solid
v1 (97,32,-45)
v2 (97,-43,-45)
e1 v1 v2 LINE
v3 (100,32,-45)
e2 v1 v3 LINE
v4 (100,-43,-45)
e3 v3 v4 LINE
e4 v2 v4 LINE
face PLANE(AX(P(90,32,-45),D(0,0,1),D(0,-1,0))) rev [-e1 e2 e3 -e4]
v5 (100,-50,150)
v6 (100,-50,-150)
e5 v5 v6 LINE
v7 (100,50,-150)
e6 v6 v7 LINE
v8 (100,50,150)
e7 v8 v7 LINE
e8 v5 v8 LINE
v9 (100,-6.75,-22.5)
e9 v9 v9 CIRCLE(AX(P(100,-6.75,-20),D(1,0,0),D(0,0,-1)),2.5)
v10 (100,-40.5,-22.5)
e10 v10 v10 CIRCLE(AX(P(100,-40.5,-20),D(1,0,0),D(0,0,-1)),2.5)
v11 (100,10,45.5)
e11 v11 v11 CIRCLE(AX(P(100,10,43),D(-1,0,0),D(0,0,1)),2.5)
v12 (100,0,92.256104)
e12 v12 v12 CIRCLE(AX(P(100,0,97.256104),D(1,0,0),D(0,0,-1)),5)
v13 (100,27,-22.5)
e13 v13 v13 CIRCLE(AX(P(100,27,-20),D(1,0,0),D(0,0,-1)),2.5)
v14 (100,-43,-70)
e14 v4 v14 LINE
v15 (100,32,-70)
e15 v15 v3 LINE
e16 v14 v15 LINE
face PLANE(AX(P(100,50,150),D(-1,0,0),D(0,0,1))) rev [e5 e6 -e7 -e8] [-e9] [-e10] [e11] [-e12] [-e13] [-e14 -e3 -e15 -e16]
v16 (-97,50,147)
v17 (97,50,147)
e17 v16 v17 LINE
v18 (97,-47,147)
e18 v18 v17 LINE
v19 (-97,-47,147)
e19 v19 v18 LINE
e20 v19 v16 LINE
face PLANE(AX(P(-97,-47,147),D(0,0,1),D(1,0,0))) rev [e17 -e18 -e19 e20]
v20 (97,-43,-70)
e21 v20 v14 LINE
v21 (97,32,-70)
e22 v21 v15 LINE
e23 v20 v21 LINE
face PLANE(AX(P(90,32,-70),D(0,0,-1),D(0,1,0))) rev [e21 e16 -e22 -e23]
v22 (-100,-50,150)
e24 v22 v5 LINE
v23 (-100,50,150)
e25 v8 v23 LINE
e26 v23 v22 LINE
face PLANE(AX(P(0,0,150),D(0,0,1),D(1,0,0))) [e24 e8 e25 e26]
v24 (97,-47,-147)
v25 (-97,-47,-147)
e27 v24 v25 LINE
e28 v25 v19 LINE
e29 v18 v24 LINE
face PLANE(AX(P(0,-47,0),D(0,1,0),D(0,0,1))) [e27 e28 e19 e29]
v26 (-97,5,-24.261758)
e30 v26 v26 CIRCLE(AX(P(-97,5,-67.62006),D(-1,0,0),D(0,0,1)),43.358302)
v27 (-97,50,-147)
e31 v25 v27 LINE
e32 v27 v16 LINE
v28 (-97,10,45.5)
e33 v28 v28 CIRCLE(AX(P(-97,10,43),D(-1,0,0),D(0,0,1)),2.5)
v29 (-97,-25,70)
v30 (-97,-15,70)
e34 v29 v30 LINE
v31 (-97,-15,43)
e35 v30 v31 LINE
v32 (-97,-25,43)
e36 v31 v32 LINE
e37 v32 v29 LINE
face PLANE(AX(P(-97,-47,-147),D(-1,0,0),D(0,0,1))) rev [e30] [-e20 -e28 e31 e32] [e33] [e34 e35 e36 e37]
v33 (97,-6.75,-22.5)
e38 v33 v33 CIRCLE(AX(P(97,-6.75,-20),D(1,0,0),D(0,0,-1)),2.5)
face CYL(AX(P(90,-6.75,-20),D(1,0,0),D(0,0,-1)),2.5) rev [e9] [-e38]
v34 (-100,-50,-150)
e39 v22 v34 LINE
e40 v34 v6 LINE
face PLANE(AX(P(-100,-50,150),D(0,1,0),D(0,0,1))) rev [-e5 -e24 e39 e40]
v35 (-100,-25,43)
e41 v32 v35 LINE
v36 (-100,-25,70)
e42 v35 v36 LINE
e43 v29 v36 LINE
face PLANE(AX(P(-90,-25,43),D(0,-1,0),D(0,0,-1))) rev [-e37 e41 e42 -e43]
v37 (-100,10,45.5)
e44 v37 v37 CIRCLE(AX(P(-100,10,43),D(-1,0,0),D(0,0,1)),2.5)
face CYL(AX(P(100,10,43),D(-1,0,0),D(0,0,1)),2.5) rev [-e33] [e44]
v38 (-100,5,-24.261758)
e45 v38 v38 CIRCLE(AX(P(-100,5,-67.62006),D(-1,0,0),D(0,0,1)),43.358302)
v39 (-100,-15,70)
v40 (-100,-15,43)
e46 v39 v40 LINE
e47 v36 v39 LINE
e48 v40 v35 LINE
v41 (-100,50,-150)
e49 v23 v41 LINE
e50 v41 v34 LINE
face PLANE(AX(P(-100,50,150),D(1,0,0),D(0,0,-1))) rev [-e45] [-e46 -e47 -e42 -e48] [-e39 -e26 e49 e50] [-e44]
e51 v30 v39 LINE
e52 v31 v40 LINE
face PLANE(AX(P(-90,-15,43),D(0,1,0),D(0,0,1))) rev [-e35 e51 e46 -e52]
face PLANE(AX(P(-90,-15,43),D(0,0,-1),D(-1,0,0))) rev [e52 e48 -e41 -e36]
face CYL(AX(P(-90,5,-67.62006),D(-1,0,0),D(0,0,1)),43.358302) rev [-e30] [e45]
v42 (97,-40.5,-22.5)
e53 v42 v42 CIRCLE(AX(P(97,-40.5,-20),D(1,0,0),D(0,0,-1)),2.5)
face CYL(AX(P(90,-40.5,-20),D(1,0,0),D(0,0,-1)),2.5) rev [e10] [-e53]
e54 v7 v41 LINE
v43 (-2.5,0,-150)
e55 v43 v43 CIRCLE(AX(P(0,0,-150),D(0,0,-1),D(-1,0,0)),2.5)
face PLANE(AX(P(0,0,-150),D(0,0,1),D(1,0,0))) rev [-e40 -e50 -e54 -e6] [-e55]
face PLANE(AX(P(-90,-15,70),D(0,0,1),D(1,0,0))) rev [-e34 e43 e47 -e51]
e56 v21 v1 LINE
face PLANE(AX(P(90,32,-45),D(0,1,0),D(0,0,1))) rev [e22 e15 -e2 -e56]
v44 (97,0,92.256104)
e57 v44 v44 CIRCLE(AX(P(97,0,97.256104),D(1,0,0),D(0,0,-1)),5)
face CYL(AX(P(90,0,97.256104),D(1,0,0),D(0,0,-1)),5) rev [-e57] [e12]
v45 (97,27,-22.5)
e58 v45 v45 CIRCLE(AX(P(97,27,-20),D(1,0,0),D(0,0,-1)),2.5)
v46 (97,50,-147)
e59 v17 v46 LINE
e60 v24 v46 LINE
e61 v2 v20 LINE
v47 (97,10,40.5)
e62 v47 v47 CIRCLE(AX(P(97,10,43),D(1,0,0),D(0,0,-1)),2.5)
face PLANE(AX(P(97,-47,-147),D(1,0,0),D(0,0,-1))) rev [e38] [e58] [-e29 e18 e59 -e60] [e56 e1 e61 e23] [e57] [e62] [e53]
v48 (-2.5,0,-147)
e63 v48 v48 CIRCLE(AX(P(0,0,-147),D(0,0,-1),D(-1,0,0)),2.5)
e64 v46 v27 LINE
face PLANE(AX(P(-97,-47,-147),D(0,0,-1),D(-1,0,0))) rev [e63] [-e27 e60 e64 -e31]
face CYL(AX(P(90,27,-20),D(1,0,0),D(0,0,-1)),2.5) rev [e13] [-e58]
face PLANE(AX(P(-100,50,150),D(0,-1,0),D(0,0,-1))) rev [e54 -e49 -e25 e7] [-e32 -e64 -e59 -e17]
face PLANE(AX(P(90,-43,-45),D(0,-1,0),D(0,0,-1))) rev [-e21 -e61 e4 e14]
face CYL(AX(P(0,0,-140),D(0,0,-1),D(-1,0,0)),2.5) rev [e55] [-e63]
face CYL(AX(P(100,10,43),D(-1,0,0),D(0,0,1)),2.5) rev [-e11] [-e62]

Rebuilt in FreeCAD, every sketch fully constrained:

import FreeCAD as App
import Part
import Sketcher

V = App.Vector
Q = App.Units.Quantity

doc = App.newDocument("Part")
params = doc.addObject("Spreadsheet::Sheet", "Params")
for row, (alias, value) in enumerate([
    ("sketch1_width", "200 mm"),
    ("sketch1_height", "100 mm"),
    ("pad1_length", "300 mm"),
    ("sketch2_width", "194 mm"),
    ("sketch2_height", "294 mm"),
    ("pocket1_length", "97 mm"),
    ("sketch3_diameter", "10 mm"),
    ("pocket2_length", "10 mm"),
    ("sketch4_diameter", "5 mm"),
    ("pocket3_length", "10 mm"),
    ("sketch5_width", "10 mm"),
    ("sketch5_height", "27 mm"),
    ("pocket4_length", "10 mm"),
    ("sketch6_diameter", "5 mm"),
    ("sketch7_diameter", "5 mm"),
    ("sketch7_width", "75 mm"),
    ("sketch7_height", "25 mm"),
    ("pocket6_length", "10 mm"),
    ("pocket7_length", "10 mm"),
], start=1):
    params.set(f"A{row}", alias)
    params.set(f"B{row}", "=" + value)
    params.setAlias(f"B{row}", alias)

body = doc.addObject("PartDesign::Body", "Body")

# Sketch on XY plane
sketch1 = body.newObject("Sketcher::SketchObject", "Sketch")
sketch1.AttachmentSupport = (doc.getObject("XY_Plane"), [""])
sketch1.MapMode = "FlatFace"
sketch1.addGeometry(Part.LineSegment(V(-100, 50, 0), V(-100, -50, 0)), False)
sketch1.addGeometry(Part.LineSegment(V(-100, -50, 0), V(100, -50, 0)), False)
sketch1.addGeometry(Part.LineSegment(V(100, -50, 0), V(100, 50, 0)), False)
sketch1.addGeometry(Part.LineSegment(V(100, 50, 0), V(-100, 50, 0)), False)
sketch1.addConstraint(Sketcher.Constraint("Coincident", 0, 2, 1, 1))
sketch1.addConstraint(Sketcher.Constraint("Coincident", 1, 2, 2, 1))
sketch1.addConstraint(Sketcher.Constraint("Coincident", 2, 2, 3, 1))
sketch1.addConstraint(Sketcher.Constraint("Coincident", 3, 2, 0, 1))
sketch1.addConstraint(Sketcher.Constraint("Vertical", 0))
sketch1.addConstraint(Sketcher.Constraint("Horizontal", 1))
sketch1.addConstraint(Sketcher.Constraint("Vertical", 2))
sketch1.addConstraint(Sketcher.Constraint("Horizontal", 3))
sketch1.addConstraint(Sketcher.Constraint("Symmetric", 0, 2, 2, 2, -1, 1))
sketch1.addConstraint(Sketcher.Constraint("DistanceX", 1, 1, 1, 2, Q("200 mm")))
sketch1.addConstraint(Sketcher.Constraint("DistanceY", 0, 2, 0, 1, Q("100 mm")))
sketch1.setExpression("Constraints[9]", "Params.sketch1_width")
sketch1.setExpression("Constraints[10]", "Params.sketch1_height")
pad1 = body.newObject("PartDesign::Pad", "Pad")
pad1.Profile = sketch1
pad1.setExpression("Length", "Params.pad1_length")
pad1.Midplane = True

# Sketch on XZ plane
sketch2 = body.newObject("Sketcher::SketchObject", "Sketch001")
sketch2.AttachmentSupport = (doc.getObject("XZ_Plane"), [""])
sketch2.MapMode = "FlatFace"
sketch2.AttachmentOffset = App.Placement(V(0, 0, -50), App.Rotation())
sketch2.addGeometry(Part.LineSegment(V(-97, -147, 0), V(-97, 147, 0)), False)
sketch2.addGeometry(Part.LineSegment(V(-97, 147, 0), V(97, 147, 0)), False)
sketch2.addGeometry(Part.LineSegment(V(97, 147, 0), V(97, -147, 0)), False)
sketch2.addGeometry(Part.LineSegment(V(97, -147, 0), V(-97, -147, 0)), False)
sketch2.addConstraint(Sketcher.Constraint("Coincident", 0, 2, 1, 1))
sketch2.addConstraint(Sketcher.Constraint("Coincident", 1, 2, 2, 1))
sketch2.addConstraint(Sketcher.Constraint("Coincident", 2, 2, 3, 1))
sketch2.addConstraint(Sketcher.Constraint("Coincident", 3, 2, 0, 1))
sketch2.addConstraint(Sketcher.Constraint("Vertical", 0))
sketch2.addConstraint(Sketcher.Constraint("Horizontal", 1))
sketch2.addConstraint(Sketcher.Constraint("Vertical", 2))
sketch2.addConstraint(Sketcher.Constraint("Horizontal", 3))
sketch2.addConstraint(Sketcher.Constraint("Symmetric", 0, 2, 2, 2, -1, 1))
sketch2.addConstraint(Sketcher.Constraint("DistanceX", 1, 1, 1, 2, Q("194 mm")))
sketch2.addConstraint(Sketcher.Constraint("DistanceY", 0, 1, 0, 2, Q("294 mm")))
sketch2.setExpression("Constraints[9]", "Params.sketch2_width")
sketch2.setExpression("Constraints[10]", "Params.sketch2_height")
pocket1 = body.newObject("PartDesign::Pocket", "Pocket")
pocket1.Profile = sketch2
pocket1.setExpression("Length", "Params.pocket1_length")
pocket1.Reversed = True

# Sketch on YZ plane
sketch3 = body.newObject("Sketcher::SketchObject", "Sketch002")
sketch3.AttachmentSupport = (doc.getObject("YZ_Plane"), [""])
sketch3.MapMode = "FlatFace"
sketch3.AttachmentOffset = App.Placement(V(0, 0, 100), App.Rotation())
sketch3.addGeometry(Part.Circle(V(0, 97.256104, 0), V(0, 0, 1), 5), False)
sketch3.addConstraint(Sketcher.Constraint("PointOnObject", 0, 3, -2))
sketch3.addConstraint(Sketcher.Constraint("Diameter", 0, Q("10 mm")))
sketch3.addConstraint(Sketcher.Constraint("DistanceY", -1, 1, 0, 3, Q("97.256104 mm")))
sketch3.setExpression("Constraints[1]", "Params.sketch3_diameter")
pocket2 = body.newObject("PartDesign::Pocket", "Pocket001")
pocket2.Profile = sketch3
pocket2.setExpression("Length", "Params.pocket2_length")

# Sketch on XY plane
sketch4 = body.newObject("Sketcher::SketchObject", "Sketch003")
sketch4.AttachmentSupport = (doc.getObject("XY_Plane"), [""])
sketch4.MapMode = "FlatFace"
sketch4.AttachmentOffset = App.Placement(V(0, 0, -150), App.Rotation())
sketch4.addGeometry(Part.Circle(V(0, 0, 0), V(0, 0, 1), 2.5), False)
sketch4.addConstraint(Sketcher.Constraint("Coincident", 0, 3, -1, 1))
sketch4.addConstraint(Sketcher.Constraint("Diameter", 0, Q("5 mm")))
sketch4.setExpression("Constraints[1]", "Params.sketch4_diameter")
pocket3 = body.newObject("PartDesign::Pocket", "Pocket002")
pocket3.Profile = sketch4
pocket3.setExpression("Length", "Params.pocket3_length")
pocket3.Reversed = True

# Sketch on YZ plane
sketch5 = body.newObject("Sketcher::SketchObject", "Sketch004")
sketch5.AttachmentSupport = (doc.getObject("YZ_Plane"), [""])
sketch5.MapMode = "FlatFace"
sketch5.AttachmentOffset = App.Placement(V(0, 0, -100), App.Rotation())
sketch5.addGeometry(Part.LineSegment(V(-15, 43, 0), V(-25, 43, 0)), False)
sketch5.addGeometry(Part.LineSegment(V(-25, 43, 0), V(-25, 70, 0)), False)
sketch5.addGeometry(Part.LineSegment(V(-25, 70, 0), V(-15, 70, 0)), False)
sketch5.addGeometry(Part.LineSegment(V(-15, 70, 0), V(-15, 43, 0)), False)
sketch5.addConstraint(Sketcher.Constraint("Coincident", 0, 2, 1, 1))
sketch5.addConstraint(Sketcher.Constraint("Coincident", 1, 2, 2, 1))
sketch5.addConstraint(Sketcher.Constraint("Coincident", 2, 2, 3, 1))
sketch5.addConstraint(Sketcher.Constraint("Coincident", 3, 2, 0, 1))
sketch5.addConstraint(Sketcher.Constraint("Horizontal", 0))
sketch5.addConstraint(Sketcher.Constraint("Vertical", 1))
sketch5.addConstraint(Sketcher.Constraint("Horizontal", 2))
sketch5.addConstraint(Sketcher.Constraint("Vertical", 3))
sketch5.addConstraint(Sketcher.Constraint("DistanceX", 0, 2, 0, 1, Q("10 mm")))
sketch5.addConstraint(Sketcher.Constraint("DistanceY", 1, 1, 1, 2, Q("27 mm")))
sketch5.addConstraint(Sketcher.Constraint("DistanceX", 0, 2, -1, 1, Q("25 mm")))
sketch5.addConstraint(Sketcher.Constraint("DistanceY", -1, 1, 0, 2, Q("43 mm")))
sketch5.setExpression("Constraints[8]", "Params.sketch5_width")
sketch5.setExpression("Constraints[9]", "Params.sketch5_height")
pocket4 = body.newObject("PartDesign::Pocket", "Pocket003")
pocket4.Profile = sketch5
pocket4.setExpression("Length", "Params.pocket4_length")
pocket4.Reversed = True

# Sketch on YZ plane
sketch6 = body.newObject("Sketcher::SketchObject", "Sketch005")
sketch6.AttachmentSupport = (doc.getObject("YZ_Plane"), [""])
sketch6.MapMode = "FlatFace"
sketch6.AttachmentOffset = App.Placement(V(0, 0, -100), App.Rotation())
sketch6.addGeometry(Part.Circle(V(10, 43, 0), V(0, 0, 1), 2.5), False)
sketch6.addConstraint(Sketcher.Constraint("Diameter", 0, Q("5 mm")))
sketch6.addConstraint(Sketcher.Constraint("DistanceX", -1, 1, 0, 3, Q("10 mm")))
sketch6.addConstraint(Sketcher.Constraint("DistanceY", -1, 1, 0, 3, Q("43 mm")))
sketch6.setExpression("Constraints[0]", "Params.sketch6_diameter")
pocket5 = body.newObject("PartDesign::Pocket", "Pocket004")
pocket5.Profile = sketch6
pocket5.Type = "ThroughAll"
pocket5.Reversed = True

# Sketch on YZ plane
sketch7 = body.newObject("Sketcher::SketchObject", "Sketch006")
sketch7.AttachmentSupport = (doc.getObject("YZ_Plane"), [""])
sketch7.MapMode = "FlatFace"
sketch7.AttachmentOffset = App.Placement(V(0, 0, 100), App.Rotation())
sketch7.addGeometry(Part.Circle(V(27, -20, 0), V(0, 0, 1), 2.5), False)
sketch7.addGeometry(Part.Circle(V(-6.75, -20, 0), V(0, 0, 1), 2.5), False)
sketch7.addGeometry(Part.Circle(V(-40.5, -20, 0), V(0, 0, 1), 2.5), False)
sketch7.addGeometry(Part.LineSegment(V(32, -45, 0), V(-43, -45, 0)), False)
sketch7.addGeometry(Part.LineSegment(V(-43, -45, 0), V(-43, -70, 0)), False)
sketch7.addGeometry(Part.LineSegment(V(-43, -70, 0), V(32, -70, 0)), False)
sketch7.addGeometry(Part.LineSegment(V(32, -70, 0), V(32, -45, 0)), False)
sketch7.addConstraint(Sketcher.Constraint("Coincident", 3, 2, 4, 1))
sketch7.addConstraint(Sketcher.Constraint("Coincident", 4, 2, 5, 1))
sketch7.addConstraint(Sketcher.Constraint("Coincident", 5, 2, 6, 1))
sketch7.addConstraint(Sketcher.Constraint("Coincident", 6, 2, 3, 1))
sketch7.addConstraint(Sketcher.Constraint("Horizontal", 3))
sketch7.addConstraint(Sketcher.Constraint("Vertical", 4))
sketch7.addConstraint(Sketcher.Constraint("Horizontal", 5))
sketch7.addConstraint(Sketcher.Constraint("Vertical", 6))
sketch7.addConstraint(Sketcher.Constraint("Equal", 0, 1))
sketch7.addConstraint(Sketcher.Constraint("Equal", 1, 2))
sketch7.addConstraint(Sketcher.Constraint("Horizontal", 0, 3, 1, 3))
sketch7.addConstraint(Sketcher.Constraint("Horizontal", 1, 3, 2, 3))
sketch7.addConstraint(Sketcher.Constraint("Diameter", 0, Q("5 mm")))
sketch7.addConstraint(Sketcher.Constraint("DistanceX", 3, 2, 3, 1, Q("75 mm")))
sketch7.addConstraint(Sketcher.Constraint("DistanceY", 4, 2, 4, 1, Q("25 mm")))
sketch7.addConstraint(Sketcher.Constraint("DistanceX", -1, 1, 0, 3, Q("27 mm")))
sketch7.addConstraint(Sketcher.Constraint("DistanceY", 0, 3, -1, 1, Q("20 mm")))
sketch7.addConstraint(Sketcher.Constraint("DistanceX", 3, 2, -1, 1, Q("43 mm")))
sketch7.addConstraint(Sketcher.Constraint("DistanceY", 3, 2, -1, 1, Q("45 mm")))
sketch7.addConstraint(Sketcher.Constraint("DistanceX", 2, 3, -1, 1, Q("40.5 mm")))
sketch7.addConstraint(Sketcher.Constraint("DistanceX", 1, 3, -1, 1, Q("6.75 mm")))
sketch7.setExpression("Constraints[12]", "Params.sketch7_diameter")
sketch7.setExpression("Constraints[13]", "Params.sketch7_width")
sketch7.setExpression("Constraints[14]", "Params.sketch7_height")
pocket6 = body.newObject("PartDesign::Pocket", "Pocket005")
pocket6.Profile = sketch7
pocket6.setExpression("Length", "Params.pocket6_length")

# Sketch on YZ plane
sketch8 = body.newObject("Sketcher::SketchObject", "Sketch007")
sketch8.AttachmentSupport = (doc.getObject("YZ_Plane"), [""])
sketch8.MapMode = "FlatFace"
sketch8.AttachmentOffset = App.Placement(V(0, 0, -100), App.Rotation())
sketch8.addGeometry(Part.Circle(V(5, -67.62006, 0), V(0, 0, 1), 43.358302), False)
sketch8.addConstraint(Sketcher.Constraint("DistanceX", -1, 1, 0, 3, Q("5 mm")))
sketch8.addConstraint(Sketcher.Constraint("Diameter", 0, Q("86.716603 mm")))
sketch8.addConstraint(Sketcher.Constraint("DistanceY", 0, 3, -1, 1, Q("67.62006 mm")))
pocket7 = body.newObject("PartDesign::Pocket", "Pocket006")
pocket7.Profile = sketch8
pocket7.setExpression("Length", "Params.pocket7_length")
pocket7.Reversed = True

doc.recompute()
